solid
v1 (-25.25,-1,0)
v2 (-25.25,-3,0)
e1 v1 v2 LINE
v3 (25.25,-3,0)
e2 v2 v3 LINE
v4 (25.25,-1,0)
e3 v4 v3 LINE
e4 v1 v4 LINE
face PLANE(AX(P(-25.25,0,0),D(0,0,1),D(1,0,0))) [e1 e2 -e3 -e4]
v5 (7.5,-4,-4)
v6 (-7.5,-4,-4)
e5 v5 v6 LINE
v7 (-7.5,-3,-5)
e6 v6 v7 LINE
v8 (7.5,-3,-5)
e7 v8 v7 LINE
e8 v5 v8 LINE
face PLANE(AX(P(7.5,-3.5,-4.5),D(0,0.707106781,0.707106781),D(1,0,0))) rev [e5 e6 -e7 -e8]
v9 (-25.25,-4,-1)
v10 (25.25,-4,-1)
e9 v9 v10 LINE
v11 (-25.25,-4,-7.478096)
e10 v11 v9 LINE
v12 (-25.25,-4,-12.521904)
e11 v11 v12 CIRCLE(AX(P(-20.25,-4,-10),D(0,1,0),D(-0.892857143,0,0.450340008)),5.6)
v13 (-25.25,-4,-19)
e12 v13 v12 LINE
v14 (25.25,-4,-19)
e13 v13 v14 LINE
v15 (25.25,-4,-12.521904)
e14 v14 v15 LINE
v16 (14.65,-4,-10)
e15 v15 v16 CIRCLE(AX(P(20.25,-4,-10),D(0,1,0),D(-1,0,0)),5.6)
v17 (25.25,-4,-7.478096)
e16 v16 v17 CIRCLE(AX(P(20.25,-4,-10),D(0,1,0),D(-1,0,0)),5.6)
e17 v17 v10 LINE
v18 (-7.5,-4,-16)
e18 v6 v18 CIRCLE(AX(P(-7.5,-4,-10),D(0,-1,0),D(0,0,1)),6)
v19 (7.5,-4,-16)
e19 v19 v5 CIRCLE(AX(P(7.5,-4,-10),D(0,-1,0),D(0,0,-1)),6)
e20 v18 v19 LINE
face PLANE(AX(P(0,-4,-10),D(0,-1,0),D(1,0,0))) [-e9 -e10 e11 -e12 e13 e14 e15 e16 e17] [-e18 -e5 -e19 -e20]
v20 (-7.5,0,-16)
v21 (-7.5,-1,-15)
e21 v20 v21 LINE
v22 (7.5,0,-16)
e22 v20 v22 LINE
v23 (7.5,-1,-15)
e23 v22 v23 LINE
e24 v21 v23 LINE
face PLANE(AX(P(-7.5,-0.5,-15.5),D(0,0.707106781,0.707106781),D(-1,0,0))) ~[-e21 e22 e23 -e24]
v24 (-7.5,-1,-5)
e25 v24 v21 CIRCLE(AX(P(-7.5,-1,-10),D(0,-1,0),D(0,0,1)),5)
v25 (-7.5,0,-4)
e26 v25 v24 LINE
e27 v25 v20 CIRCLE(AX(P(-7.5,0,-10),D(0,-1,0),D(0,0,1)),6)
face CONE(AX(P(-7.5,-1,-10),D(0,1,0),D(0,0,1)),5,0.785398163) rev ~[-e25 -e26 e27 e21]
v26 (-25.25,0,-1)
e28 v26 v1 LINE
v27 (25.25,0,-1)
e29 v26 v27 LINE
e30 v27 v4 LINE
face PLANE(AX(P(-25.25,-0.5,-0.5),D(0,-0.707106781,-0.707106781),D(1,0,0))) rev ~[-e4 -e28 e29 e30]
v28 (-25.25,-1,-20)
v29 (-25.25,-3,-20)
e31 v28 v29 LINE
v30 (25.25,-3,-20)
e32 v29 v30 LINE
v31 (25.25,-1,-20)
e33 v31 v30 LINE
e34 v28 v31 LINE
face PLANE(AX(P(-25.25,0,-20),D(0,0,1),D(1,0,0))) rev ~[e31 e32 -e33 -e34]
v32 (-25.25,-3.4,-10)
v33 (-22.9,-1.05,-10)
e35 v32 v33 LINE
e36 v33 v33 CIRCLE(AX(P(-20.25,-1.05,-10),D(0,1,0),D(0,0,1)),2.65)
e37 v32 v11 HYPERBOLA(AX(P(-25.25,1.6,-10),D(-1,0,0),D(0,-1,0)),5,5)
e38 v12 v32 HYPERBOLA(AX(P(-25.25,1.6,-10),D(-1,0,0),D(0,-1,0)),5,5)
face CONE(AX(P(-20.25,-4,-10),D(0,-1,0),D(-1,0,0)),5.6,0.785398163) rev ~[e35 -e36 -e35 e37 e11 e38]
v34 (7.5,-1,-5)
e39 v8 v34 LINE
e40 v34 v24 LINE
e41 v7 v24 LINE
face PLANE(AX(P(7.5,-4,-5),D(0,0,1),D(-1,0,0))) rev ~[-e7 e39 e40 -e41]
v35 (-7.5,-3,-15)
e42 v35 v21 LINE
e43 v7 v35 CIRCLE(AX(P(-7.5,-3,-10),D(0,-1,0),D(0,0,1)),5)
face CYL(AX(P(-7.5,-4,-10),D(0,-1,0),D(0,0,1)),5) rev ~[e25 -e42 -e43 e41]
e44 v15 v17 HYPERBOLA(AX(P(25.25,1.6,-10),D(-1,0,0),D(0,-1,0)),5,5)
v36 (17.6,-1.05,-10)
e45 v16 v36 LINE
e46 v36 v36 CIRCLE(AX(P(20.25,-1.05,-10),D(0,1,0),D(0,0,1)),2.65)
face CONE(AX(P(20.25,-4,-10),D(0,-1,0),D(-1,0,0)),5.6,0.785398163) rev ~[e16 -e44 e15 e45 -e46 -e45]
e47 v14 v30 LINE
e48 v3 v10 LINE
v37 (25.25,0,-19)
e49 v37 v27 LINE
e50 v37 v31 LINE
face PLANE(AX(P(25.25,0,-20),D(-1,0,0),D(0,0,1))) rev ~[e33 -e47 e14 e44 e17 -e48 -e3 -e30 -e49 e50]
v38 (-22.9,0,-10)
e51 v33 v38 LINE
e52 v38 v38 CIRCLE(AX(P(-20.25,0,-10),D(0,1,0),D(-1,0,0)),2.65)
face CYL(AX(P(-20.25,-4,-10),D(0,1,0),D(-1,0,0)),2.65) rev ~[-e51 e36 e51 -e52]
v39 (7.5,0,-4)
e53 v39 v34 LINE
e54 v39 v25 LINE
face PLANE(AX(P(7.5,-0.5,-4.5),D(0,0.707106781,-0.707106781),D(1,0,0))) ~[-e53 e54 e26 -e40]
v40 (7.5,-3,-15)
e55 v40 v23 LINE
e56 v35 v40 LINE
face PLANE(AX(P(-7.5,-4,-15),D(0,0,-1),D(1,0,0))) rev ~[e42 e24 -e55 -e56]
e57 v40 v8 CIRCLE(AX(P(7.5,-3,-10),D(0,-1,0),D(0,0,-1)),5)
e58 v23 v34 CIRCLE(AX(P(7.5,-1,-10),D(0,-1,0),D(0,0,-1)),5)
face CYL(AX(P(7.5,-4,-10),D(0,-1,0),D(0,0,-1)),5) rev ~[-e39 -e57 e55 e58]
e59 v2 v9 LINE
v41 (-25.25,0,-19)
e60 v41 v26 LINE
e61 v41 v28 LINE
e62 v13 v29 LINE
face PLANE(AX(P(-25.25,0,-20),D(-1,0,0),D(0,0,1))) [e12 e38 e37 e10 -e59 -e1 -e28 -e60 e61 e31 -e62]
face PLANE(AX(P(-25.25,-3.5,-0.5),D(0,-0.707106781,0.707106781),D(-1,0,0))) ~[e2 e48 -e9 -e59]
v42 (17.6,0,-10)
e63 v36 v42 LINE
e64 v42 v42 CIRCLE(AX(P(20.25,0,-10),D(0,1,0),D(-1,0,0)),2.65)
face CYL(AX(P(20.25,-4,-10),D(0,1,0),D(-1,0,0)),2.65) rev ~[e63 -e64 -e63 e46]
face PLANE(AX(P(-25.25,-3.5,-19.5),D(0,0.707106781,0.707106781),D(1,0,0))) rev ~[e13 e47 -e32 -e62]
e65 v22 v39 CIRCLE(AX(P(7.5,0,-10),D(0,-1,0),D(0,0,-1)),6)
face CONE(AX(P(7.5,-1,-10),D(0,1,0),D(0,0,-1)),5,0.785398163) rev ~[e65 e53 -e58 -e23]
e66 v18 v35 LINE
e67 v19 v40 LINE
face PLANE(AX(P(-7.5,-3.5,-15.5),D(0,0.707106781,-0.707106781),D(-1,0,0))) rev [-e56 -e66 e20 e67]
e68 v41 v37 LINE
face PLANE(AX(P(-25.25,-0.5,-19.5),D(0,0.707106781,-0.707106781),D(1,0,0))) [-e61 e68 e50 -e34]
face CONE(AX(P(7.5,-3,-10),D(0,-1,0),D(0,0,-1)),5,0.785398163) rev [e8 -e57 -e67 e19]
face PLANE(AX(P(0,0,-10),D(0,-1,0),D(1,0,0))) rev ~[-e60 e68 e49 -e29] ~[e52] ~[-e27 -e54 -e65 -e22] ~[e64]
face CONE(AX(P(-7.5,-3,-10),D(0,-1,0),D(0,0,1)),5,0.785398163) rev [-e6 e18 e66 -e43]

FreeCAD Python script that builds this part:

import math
import FreeCAD as App
import Part
import Sketcher


def edges_at(feature, points):
    """Names of the edges that pass closest to the given points."""
    edges = feature.Shape.Edges
    near = lambda p: min(range(len(edges)), key=lambda i: edges[i].distToShape(Part.Vertex(*p))[0])
    return sorted({f"Edge{near(p) + 1}" for p in points})

doc = App.newDocument("Part")
params = doc.addObject("Spreadsheet::Sheet", "Params")
for row, (alias, value) in enumerate([
    ("sketch1_height", "20 mm"),
    ("sketch1_width", "50.5 mm"),
    ("pad1_length", "4 mm"),
    ("sketch2_diameter", "5.3 mm"),
    ("hole_diameter", "5.3 mm"),
    ("hole_depth", "8 mm"),
    ("hole_csink_diameter", "11.2 mm"),
    ("sketch3_radius", "5 mm"),
    ("sketch3_width", "15 mm"),
    ("chamfer_size", "1 mm"),
], start=1):
    params.set(f"A{row}", alias)
    params.set(f"B{row}", "=" + value)
    params.setAlias(f"B{row}", alias)

body = doc.addObject("PartDesign::Body", "Body")

sketch1 = doc.addObject("Sketcher::SketchObject", "Sketch")
body.addObject(sketch1)
sketch1.AttachmentSupport = (doc.XZ_Plane, [""])
sketch1.MapMode = "FlatFace"
sketch1.addGeometry([
    Part.LineSegment(App.Vector(-25, 0, 0), App.Vector(-25, -20, 0)),
    Part.LineSegment(App.Vector(-25, -20, 0), App.Vector(25, -20, 0)),
    Part.LineSegment(App.Vector(25, -20, 0), App.Vector(25, 0, 0)),
    Part.LineSegment(App.Vector(25, 0, 0), App.Vector(-25, 0, 0)),
], False)
sketch1.addConstraint([
    Sketcher.Constraint("Coincident", 0, 2, 1, 1),
    Sketcher.Constraint("Coincident", 1, 2, 2, 1),
    Sketcher.Constraint("Coincident", 2, 2, 3, 1),
    Sketcher.Constraint("Coincident", 3, 2, 0, 1),
    Sketcher.Constraint("Vertical", 0),
    Sketcher.Constraint("Horizontal", 1),
    Sketcher.Constraint("Vertical", 2),
    Sketcher.Constraint("Horizontal", 3),
    Sketcher.Constraint("Symmetric", 2, 2, 3, 2, -1, 1),
    Sketcher.Constraint("DistanceY", 0, 2, 0, 1, 20.0),
    Sketcher.Constraint("DistanceX", 1, 1, 1, 2, 50.5),
])
sketch1.setExpression("Constraints[9]", "Params.sketch1_height")
sketch1.setExpression("Constraints[10]", "Params.sketch1_width")
pad1 = doc.addObject("PartDesign::Pad", "Pad")
body.addObject(pad1)
pad1.Profile = sketch1
pad1.setExpression("Length", "Params.pad1_length")

sketch2 = doc.addObject("Sketcher::SketchObject", "Sketch001")
body.addObject(sketch2)
sketch2.AttachmentSupport = (doc.XZ_Plane, [""])
sketch2.MapMode = "FlatFace"
sketch2.AttachmentOffset = App.Placement(App.Vector(0, 0, 4), App.Rotation())
sketch2.addGeometry([
    Part.Circle(App.Vector(-20.2, -10, 0), App.Vector(0, 0, 1), 2.6),
    Part.Circle(App.Vector(20.2, -10, 0), App.Vector(0, 0, 1), 2.6),
], False)
sketch2.addConstraint([
    Sketcher.Constraint("Equal", 0, 1),
    Sketcher.Constraint("Symmetric", 0, 3, 1, 3, -2),
    Sketcher.Constraint("Diameter", 0, 5.3),
    Sketcher.Constraint("DistanceY", 0, 3, -1, 1, 10.0),
    Sketcher.Constraint("DistanceX", 0, 3, 1, 3, 40.5),
])
sketch2.setExpression("Constraints[2]", "Params.sketch2_diameter")
doc.recompute()
hole = doc.addObject("PartDesign::Hole", "Hole")
body.addObject(hole)
hole.Profile = sketch2
hole.ThreadType = "None"
hole.setExpression("Diameter", "Params.hole_diameter")
hole.DepthType = "Dimension"
hole.setExpression("Depth", "Params.hole_depth")
hole.DrillPoint = "Angled"
hole.DrillPointAngle = 118
hole.HoleCutType = "Countersink"
hole.setExpression("HoleCutDiameter", "Params.hole_csink_diameter")
hole.HoleCutCountersinkAngle = 90

sketch3 = doc.addObject("Sketcher::SketchObject", "Sketch002")
body.addObject(sketch3)
sketch3.AttachmentSupport = (doc.XZ_Plane, [""])
sketch3.MapMode = "FlatFace"
sketch3.AttachmentOffset = App.Placement(App.Vector(0, 0, 4), App.Rotation())
sketch3.addGeometry([
    Part.LineSegment(App.Vector(8, -5, 0), App.Vector(-8, -5, 0)),
    Part.ArcOfCircle(Part.Circle(App.Vector(-8, -10, 0), App.Vector(0, 0, 1), 5), math.radians(90), math.radians(270)),
    Part.LineSegment(App.Vector(-8, -15, 0), App.Vector(8, -15, 0)),
    Part.ArcOfCircle(Part.Circle(App.Vector(8, -10, 0), App.Vector(0, 0, 1), 5), math.radians(-90), math.radians(90)),
], False)
sketch3.addConstraint([
    Sketcher.Constraint("Tangent", 0, 2, 1, 1),
    Sketcher.Constraint("Tangent", 1, 2, 2, 1),
    Sketcher.Constraint("Tangent", 2, 2, 3, 1),
    Sketcher.Constraint("Tangent", 3, 2, 0, 1),
    Sketcher.Constraint("Horizontal", 0),
    Sketcher.Constraint("Horizontal", 2),
    Sketcher.Constraint("Radius", 1, 5.0),
    Sketcher.Constraint("DistanceX", 0, 2, 0, 1, 15.0),
    Sketcher.Constraint("DistanceY", 1, 3, -1, 1, 10.0),
    Sketcher.Constraint("DistanceX", 1, 3, -1, 1, 7.5),
])
sketch3.setExpression("Constraints[6]", "Params.sketch3_radius")
sketch3.setExpression("Constraints[7]", "Params.sketch3_width")
pocket1 = doc.addObject("PartDesign::Pocket", "Pocket")
body.addObject(pocket1)
pocket1.Profile = sketch3
pocket1.Type = "ThroughAll"
doc.recompute()

chamfer = doc.addObject("PartDesign::Chamfer", "Chamfer")
body.addObject(chamfer)
chamfer.Base = (pocket1, edges_at(pocket1, [
    (0, -4, -20),
    (0, -4, 0),
    (0, -4, -15),
    (0, 0, -15),
    (0, 0, -20),
    (0, 0, 0),
]))
chamfer.setExpression("Size", "Params.chamfer_size")

doc.recompute()
